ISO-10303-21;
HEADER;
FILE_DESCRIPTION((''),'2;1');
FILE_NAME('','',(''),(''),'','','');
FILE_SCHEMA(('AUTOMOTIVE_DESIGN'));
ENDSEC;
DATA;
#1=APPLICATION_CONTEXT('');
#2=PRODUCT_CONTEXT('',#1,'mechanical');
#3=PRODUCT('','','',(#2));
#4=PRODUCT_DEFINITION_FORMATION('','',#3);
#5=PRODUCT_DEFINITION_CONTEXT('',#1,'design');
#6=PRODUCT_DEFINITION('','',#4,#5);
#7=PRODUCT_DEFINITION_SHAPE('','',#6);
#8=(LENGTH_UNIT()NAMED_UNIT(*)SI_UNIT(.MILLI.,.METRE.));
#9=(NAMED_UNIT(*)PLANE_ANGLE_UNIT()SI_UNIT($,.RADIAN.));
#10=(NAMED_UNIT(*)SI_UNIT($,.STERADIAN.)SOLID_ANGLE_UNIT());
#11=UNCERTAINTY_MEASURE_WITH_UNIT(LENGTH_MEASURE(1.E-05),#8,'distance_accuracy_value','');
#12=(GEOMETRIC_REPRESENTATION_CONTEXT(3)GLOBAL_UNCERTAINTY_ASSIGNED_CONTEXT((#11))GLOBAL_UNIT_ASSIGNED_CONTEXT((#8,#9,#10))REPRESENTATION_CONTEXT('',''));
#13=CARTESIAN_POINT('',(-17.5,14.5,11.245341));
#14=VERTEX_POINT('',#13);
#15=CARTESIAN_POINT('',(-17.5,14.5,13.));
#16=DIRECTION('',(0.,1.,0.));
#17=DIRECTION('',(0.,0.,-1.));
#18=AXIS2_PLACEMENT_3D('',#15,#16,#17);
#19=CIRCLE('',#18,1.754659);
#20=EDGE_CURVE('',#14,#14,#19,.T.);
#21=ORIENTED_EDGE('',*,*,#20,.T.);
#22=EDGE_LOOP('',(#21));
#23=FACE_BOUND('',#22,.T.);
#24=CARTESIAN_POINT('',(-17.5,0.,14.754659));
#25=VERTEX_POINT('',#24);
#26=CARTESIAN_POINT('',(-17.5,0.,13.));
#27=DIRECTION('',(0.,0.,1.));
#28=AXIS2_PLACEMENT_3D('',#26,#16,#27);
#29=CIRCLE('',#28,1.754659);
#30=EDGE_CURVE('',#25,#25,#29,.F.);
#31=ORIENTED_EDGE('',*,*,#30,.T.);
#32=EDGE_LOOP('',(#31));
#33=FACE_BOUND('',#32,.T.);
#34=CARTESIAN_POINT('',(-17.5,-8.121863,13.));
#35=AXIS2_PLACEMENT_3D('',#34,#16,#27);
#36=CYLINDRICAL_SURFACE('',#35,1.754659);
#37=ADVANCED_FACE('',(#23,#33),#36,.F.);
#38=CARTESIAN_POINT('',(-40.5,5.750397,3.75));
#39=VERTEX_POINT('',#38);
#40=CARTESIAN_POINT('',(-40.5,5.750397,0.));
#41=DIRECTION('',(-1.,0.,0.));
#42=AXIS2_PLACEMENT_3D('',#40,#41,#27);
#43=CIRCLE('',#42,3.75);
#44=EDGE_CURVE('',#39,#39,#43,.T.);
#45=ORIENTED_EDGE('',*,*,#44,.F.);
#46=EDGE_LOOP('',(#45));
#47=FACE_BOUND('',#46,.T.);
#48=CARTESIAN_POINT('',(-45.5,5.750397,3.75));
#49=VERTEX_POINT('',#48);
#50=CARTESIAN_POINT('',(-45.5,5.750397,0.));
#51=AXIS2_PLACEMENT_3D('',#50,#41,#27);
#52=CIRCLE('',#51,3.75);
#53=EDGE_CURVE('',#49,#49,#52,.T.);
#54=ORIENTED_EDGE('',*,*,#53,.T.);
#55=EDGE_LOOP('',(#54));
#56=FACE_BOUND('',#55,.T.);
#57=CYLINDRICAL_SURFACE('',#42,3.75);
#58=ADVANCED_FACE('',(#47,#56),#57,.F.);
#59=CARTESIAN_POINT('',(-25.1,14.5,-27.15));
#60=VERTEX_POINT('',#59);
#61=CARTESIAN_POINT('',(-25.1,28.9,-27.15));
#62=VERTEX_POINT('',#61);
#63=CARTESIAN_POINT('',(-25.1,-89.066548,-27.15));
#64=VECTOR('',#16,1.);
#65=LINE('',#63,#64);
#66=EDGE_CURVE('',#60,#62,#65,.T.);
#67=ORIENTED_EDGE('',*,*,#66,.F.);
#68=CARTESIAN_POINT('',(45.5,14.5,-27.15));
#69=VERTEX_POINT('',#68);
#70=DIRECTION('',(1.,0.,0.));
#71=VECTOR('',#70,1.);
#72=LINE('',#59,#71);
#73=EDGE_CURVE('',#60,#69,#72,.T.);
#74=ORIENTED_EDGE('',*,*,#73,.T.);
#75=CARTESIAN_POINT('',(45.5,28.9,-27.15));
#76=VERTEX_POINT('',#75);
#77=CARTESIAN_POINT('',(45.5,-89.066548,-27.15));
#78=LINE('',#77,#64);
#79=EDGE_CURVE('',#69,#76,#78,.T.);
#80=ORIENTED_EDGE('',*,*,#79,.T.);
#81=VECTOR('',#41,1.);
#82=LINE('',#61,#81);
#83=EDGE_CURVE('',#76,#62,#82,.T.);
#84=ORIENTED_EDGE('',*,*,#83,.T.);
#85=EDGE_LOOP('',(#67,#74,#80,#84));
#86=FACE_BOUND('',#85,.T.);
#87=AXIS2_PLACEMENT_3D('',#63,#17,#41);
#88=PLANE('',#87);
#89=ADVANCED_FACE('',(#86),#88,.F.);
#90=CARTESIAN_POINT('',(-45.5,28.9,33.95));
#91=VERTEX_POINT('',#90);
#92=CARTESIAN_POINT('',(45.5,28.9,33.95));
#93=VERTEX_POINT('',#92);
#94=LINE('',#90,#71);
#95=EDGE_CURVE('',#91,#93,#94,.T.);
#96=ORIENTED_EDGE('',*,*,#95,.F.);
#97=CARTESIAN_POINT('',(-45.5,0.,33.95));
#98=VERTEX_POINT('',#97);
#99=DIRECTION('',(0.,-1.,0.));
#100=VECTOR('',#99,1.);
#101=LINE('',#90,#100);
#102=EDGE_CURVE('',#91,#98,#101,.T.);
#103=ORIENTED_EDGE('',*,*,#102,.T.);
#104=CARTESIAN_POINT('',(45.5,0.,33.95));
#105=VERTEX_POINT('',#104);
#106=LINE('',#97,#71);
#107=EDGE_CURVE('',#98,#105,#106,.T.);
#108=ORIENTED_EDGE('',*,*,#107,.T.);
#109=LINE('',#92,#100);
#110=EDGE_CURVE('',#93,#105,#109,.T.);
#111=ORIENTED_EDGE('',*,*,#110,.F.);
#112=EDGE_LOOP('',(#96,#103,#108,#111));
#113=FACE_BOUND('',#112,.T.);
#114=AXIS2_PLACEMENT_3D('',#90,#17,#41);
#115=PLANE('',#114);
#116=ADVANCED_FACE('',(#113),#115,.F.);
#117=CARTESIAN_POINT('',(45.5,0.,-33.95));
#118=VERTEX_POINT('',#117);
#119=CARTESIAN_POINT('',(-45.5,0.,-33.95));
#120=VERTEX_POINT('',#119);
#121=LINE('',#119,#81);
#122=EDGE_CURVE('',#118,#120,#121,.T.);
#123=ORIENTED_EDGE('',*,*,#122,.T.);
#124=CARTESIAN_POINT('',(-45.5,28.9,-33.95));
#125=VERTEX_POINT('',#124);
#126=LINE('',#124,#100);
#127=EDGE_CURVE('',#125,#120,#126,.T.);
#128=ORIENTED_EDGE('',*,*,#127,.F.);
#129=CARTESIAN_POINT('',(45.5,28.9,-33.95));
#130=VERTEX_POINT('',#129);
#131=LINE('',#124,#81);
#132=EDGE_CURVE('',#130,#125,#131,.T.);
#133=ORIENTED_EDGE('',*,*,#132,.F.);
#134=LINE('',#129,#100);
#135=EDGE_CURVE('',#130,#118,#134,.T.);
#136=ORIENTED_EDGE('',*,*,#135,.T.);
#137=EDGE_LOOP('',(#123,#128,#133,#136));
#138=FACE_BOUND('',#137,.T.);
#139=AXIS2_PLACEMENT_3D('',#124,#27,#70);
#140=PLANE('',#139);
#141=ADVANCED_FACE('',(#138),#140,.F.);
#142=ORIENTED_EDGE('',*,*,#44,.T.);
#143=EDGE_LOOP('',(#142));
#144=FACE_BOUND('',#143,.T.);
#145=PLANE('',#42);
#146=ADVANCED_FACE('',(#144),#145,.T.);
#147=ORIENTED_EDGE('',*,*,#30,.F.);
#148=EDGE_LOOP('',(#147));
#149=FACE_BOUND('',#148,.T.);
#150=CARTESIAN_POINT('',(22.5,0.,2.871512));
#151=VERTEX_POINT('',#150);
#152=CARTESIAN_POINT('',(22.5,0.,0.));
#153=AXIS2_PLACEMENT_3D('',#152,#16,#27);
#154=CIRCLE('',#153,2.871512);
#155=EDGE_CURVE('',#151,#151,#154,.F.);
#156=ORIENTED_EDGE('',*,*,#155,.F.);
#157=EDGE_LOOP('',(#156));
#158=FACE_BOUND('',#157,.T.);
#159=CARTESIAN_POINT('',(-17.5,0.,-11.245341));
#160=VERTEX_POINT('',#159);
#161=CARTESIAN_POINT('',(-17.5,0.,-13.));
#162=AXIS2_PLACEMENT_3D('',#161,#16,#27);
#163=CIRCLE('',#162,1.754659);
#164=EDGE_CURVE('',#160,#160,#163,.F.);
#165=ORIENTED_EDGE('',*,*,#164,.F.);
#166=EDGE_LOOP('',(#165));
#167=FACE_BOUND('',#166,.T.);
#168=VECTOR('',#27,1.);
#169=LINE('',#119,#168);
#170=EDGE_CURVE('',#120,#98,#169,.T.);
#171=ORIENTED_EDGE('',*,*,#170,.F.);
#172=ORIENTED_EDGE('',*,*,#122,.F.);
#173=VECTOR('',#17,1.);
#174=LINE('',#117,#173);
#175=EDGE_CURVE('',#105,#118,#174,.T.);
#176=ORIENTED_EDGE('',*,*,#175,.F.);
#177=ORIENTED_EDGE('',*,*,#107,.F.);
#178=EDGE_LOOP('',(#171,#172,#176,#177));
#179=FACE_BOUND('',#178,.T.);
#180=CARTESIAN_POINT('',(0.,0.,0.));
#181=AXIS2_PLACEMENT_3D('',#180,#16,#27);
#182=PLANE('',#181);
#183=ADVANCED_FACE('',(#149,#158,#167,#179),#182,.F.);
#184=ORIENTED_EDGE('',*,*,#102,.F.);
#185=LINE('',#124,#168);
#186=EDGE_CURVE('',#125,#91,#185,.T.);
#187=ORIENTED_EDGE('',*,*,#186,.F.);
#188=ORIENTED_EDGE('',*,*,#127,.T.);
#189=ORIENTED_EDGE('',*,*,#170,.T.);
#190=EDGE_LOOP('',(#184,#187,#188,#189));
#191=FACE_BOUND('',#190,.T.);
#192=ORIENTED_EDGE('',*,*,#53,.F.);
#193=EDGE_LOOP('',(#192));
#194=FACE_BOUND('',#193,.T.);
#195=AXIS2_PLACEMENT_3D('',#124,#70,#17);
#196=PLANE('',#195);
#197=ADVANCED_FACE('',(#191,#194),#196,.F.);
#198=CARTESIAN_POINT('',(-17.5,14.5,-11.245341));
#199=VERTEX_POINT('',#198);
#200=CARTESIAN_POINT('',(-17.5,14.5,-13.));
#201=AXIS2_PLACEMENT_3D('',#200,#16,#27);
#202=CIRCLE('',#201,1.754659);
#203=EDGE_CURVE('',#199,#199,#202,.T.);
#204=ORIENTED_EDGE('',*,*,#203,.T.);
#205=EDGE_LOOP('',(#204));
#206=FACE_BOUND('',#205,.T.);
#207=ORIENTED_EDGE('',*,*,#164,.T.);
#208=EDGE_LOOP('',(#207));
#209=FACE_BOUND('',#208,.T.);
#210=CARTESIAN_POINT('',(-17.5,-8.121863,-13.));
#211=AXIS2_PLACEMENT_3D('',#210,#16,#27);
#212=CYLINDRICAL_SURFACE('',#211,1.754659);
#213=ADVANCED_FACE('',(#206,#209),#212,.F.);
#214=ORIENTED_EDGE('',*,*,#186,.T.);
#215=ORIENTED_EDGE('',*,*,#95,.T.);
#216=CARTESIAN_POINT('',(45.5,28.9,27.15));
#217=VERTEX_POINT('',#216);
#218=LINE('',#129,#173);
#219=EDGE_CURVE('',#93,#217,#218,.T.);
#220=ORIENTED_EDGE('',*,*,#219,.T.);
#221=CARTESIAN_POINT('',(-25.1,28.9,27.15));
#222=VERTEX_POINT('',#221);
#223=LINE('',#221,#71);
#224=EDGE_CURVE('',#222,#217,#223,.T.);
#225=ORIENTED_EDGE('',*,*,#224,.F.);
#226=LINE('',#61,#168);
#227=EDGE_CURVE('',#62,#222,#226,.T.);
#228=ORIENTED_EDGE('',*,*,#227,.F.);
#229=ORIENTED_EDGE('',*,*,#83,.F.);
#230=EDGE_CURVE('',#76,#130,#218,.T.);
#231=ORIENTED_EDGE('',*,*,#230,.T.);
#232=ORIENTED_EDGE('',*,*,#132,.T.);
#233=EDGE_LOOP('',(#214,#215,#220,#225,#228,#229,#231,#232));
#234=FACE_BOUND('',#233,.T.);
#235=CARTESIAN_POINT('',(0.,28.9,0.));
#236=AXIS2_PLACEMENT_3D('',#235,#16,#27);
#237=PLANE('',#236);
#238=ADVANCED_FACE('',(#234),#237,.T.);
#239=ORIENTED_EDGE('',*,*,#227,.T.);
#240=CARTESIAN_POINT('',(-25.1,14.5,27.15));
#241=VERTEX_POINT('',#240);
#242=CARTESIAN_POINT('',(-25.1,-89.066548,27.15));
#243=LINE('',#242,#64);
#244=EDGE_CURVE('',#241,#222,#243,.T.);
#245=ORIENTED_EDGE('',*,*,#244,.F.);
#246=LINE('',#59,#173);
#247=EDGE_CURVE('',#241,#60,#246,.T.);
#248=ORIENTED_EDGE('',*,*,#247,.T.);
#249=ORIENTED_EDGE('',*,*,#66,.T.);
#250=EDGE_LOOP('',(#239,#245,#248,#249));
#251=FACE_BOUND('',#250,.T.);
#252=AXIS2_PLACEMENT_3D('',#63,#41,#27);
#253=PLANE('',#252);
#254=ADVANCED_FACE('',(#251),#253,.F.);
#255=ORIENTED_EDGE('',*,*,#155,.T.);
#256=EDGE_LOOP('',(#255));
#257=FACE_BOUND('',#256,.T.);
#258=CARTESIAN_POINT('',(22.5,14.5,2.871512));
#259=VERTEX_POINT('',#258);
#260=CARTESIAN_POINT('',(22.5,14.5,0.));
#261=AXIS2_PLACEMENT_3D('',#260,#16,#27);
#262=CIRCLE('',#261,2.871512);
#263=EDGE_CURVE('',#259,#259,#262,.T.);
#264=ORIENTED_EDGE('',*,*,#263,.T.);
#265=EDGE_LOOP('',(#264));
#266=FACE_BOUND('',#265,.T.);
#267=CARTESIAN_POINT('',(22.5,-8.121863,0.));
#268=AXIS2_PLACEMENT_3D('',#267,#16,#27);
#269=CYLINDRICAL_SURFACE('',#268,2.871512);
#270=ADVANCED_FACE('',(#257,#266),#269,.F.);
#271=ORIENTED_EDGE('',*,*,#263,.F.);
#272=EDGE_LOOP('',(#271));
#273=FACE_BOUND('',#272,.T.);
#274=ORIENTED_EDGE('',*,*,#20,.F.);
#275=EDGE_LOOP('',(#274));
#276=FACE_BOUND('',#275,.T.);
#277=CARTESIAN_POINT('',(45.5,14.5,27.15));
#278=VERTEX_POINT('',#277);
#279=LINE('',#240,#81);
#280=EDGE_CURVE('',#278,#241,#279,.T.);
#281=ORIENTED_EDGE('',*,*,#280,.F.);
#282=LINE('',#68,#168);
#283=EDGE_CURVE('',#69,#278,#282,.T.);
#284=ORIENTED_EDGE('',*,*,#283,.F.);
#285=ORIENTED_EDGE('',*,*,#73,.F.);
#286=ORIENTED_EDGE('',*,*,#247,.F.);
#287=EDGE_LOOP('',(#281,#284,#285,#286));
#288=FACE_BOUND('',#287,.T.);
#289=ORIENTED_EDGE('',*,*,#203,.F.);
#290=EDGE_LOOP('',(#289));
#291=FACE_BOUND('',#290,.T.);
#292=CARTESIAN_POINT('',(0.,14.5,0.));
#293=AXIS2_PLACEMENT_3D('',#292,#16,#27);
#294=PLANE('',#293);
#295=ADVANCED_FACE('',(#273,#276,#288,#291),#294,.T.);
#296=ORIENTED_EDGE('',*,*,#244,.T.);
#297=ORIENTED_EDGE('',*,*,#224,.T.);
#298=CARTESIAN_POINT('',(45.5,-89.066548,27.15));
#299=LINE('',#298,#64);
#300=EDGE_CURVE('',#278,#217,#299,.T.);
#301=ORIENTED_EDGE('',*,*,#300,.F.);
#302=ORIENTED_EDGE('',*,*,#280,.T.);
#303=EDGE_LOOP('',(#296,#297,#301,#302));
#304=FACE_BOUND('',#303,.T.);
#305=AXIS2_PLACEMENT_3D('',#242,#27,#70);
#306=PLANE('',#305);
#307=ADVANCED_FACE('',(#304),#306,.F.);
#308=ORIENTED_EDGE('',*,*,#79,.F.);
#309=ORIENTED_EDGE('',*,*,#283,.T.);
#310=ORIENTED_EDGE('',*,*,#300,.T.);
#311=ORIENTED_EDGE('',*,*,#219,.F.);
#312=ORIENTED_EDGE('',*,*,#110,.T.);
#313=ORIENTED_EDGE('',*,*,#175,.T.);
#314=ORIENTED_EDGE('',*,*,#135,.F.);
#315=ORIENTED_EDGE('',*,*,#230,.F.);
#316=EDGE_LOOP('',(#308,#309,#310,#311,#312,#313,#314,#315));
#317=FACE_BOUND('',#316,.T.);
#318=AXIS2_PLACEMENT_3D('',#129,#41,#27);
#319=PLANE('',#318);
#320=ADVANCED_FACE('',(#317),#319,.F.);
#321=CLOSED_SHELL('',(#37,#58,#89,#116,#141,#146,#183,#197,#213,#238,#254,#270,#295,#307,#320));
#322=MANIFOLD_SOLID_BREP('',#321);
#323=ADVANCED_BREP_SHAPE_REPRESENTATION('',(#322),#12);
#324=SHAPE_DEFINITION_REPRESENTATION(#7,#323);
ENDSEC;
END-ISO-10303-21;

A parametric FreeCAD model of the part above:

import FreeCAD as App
import Part
import Sketcher


def add_polygon(sketch, points):
    """Adds a closed chain of lines whose ends are joined by coincident constraints."""
    first, n = sketch.GeometryCount, len(points)
    for a, b in zip(points, points[1:] + points[:1]):
        sketch.addGeometry(Part.LineSegment(App.Vector(*a, 0), App.Vector(*b, 0)), False)
    for i in range(n):
        sketch.addConstraint(Sketcher.Constraint("Coincident", first + i, 2, first + (i + 1) % n, 1))

doc = App.newDocument("Part")
params = doc.addObject("Spreadsheet::Sheet", "Params")
for row, (alias, value) in enumerate([
    ("sketch1_width", "91 mm"),
    ("sketch1_height", "67.9 mm"),
    ("pad1_length", "28.9 mm"),
    ("sketch2_width", "70.6 mm"),
    ("sketch2_height", "54.3 mm"),
    ("pocket1_length", "14.4 mm"),
    ("sketch3_diameter", "7.5 mm"),
    ("pocket2_length", "5 mm"),
    ("pocket3_length", "14.5 mm"),
], start=1):
    params.set(f"A{row}", alias)
    params.set(f"B{row}", "=" + value)
    params.setAlias(f"B{row}", alias)

body = doc.addObject("PartDesign::Body", "Body")

# Sketch on XZ plane
sketch1 = body.newObject("Sketcher::SketchObject", "Sketch")
sketch1.AttachmentSupport = (doc.getObject("XZ_Plane"), [""])
sketch1.MapMode = "FlatFace"
add_polygon(sketch1, [(-45.5, -33.95), (-45.5, 33.95), (45.5, 33.95), (45.5, -33.95)])  # lines 0-3
sketch1.addConstraint(Sketcher.Constraint("Vertical", 0))
sketch1.addConstraint(Sketcher.Constraint("Horizontal", 1))
sketch1.addConstraint(Sketcher.Constraint("Vertical", 2))
sketch1.addConstraint(Sketcher.Constraint("Horizontal", 3))
sketch1.addConstraint(Sketcher.Constraint("Symmetric", 0, 2, 2, 2, -1, 1))
sketch1.addConstraint(Sketcher.Constraint("DistanceX", 1, 1, 1, 2, 91.0))
sketch1.addConstraint(Sketcher.Constraint("DistanceY", 0, 1, 0, 2, 67.9))
sketch1.setExpression("Constraints[9]", "Params.sketch1_width")
sketch1.setExpression("Constraints[10]", "Params.sketch1_height")
pad1 = body.newObject("PartDesign::Pad", "Pad")
pad1.Profile = sketch1
pad1.setExpression("Length", "Params.pad1_length")
pad1.Reversed = True

# Sketch on XZ plane
sketch2 = body.newObject("Sketcher::SketchObject", "Sketch001")
sketch2.AttachmentSupport = (doc.getObject("XZ_Plane"), [""])
sketch2.MapMode = "FlatFace"
sketch2.AttachmentOffset = App.Placement(App.Vector(0, 0, -28.9), App.Rotation())
add_polygon(sketch2, [(-25.1, -27.15), (-25.1, 27.15), (45.5, 27.15), (45.5, -27.15)])  # lines 0-3
sketch2.addConstraint(Sketcher.Constraint("Vertical", 0))
sketch2.addConstraint(Sketcher.Constraint("Horizontal", 1))
sketch2.addConstraint(Sketcher.Constraint("Vertical", 2))
sketch2.addConstraint(Sketcher.Constraint("Horizontal", 3))
sketch2.addConstraint(Sketcher.Constraint("DistanceX", 1, 1, 1, 2, 70.6))
sketch2.addConstraint(Sketcher.Constraint("DistanceY", 0, 1, 0, 2, 54.3))
sketch2.addConstraint(Sketcher.Constraint("DistanceX", 0, 2, -1, 1, 25.1))
sketch2.addConstraint(Sketcher.Constraint("DistanceY", -1, 1, 0, 2, 27.15))
sketch2.setExpression("Constraints[8]", "Params.sketch2_width")
sketch2.setExpression("Constraints[9]", "Params.sketch2_height")
pocket1 = body.newObject("PartDesign::Pocket", "Pocket")
pocket1.Profile = sketch2
pocket1.setExpression("Length", "Params.pocket1_length")
pocket1.Reversed = True

# Sketch on YZ plane
sketch3 = body.newObject("Sketcher::SketchObject", "Sketch002")
sketch3.AttachmentSupport = (doc.getObject("YZ_Plane"), [""])
sketch3.MapMode = "FlatFace"
sketch3.AttachmentOffset = App.Placement(App.Vector(0, 0, -45.5), App.Rotation())
sketch3.addGeometry(Part.Circle(App.Vector(5.750397, 0, 0), App.Vector(0, 0, 1), 3.75), False)
sketch3.addConstraint(Sketcher.Constraint("PointOnObject", 0, 3, -1))
sketch3.addConstraint(Sketcher.Constraint("Diameter", 0, 7.5))
sketch3.addConstraint(Sketcher.Constraint("DistanceX", -1, 1, 0, 3, 5.750397))
sketch3.setExpression("Constraints[1]", "Params.sketch3_diameter")
pocket2 = body.newObject("PartDesign::Pocket", "Pocket001")
pocket2.Profile = sketch3
pocket2.setExpression("Length", "Params.pocket2_length")
pocket2.Reversed = True

# Sketch on XZ plane
sketch4 = body.newObject("Sketcher::SketchObject", "Sketch003")
sketch4.AttachmentSupport = (doc.getObject("XZ_Plane"), [""])
sketch4.MapMode = "FlatFace"
sketch4.AttachmentOffset = App.Placement(App.Vector(0, 0, -14.5), App.Rotation())
sketch4.addGeometry(Part.Circle(App.Vector(22.5, 0, 0), App.Vector(0, 0, 1), 2.871512), False)
sketch4.addGeometry(Part.Circle(App.Vector(-17.5, -13, 0), App.Vector(0, 0, 1), 1.754659), False)
sketch4.addGeometry(Part.Circle(App.Vector(-17.5, 13, 0), App.Vector(0, 0, 1), 1.754659), False)
sketch4.addConstraint(Sketcher.Constraint("Equal", 1, 2))
sketch4.addConstraint(Sketcher.Constraint("Symmetric", 1, 3, 2, 3, -1))
sketch4.addConstraint(Sketcher.Constraint("PointOnObject", 0, 3, -1))
sketch4.addConstraint(Sketcher.Constraint("DistanceY", 1, 3, -1, 1, 13.0))
sketch4.addConstraint(Sketcher.Constraint("DistanceX", 1, 3, 0, 3, 40.0))
sketch4.addConstraint(Sketcher.Constraint("DistanceX", -1, 1, 0, 3, 22.5))
sketch4.addConstraint(Sketcher.Constraint("Diameter", 0, 5.743025))
sketch4.addConstraint(Sketcher.Constraint("Diameter", 1, 3.509318))
pocket3 = body.newObject("PartDesign::Pocket", "Pocket002")
pocket3.Profile = sketch4
pocket3.setExpression("Length", "Params.pocket3_length")
pocket3.Reversed = True

doc.recompute()
